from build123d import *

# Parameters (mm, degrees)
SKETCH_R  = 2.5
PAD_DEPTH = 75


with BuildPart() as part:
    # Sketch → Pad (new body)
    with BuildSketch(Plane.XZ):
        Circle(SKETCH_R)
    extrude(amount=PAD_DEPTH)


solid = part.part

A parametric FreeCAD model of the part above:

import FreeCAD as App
import Part
import Sketcher
from FreeCAD import Vector
Q = App.Units.Quantity

doc = App.newDocument("Part")
body = doc.addObject("PartDesign::Body", "Body")

# Sketch on XZ plane
sketch1 = body.newObject("Sketcher::SketchObject", "Sketch")
sketch1.AttachmentSupport = (doc.getObject("XZ_Plane"), [""])
sketch1.MapMode = "FlatFace"
sketch1.addGeometry(Part.Circle(Vector(0, 0, 0), Vector(0, 0, 1), 2.5), False)
sketch1.addConstraint([
    Sketcher.Constraint("Coincident", 0, 3, -1, 1),
    Sketcher.Constraint("Diameter", 0, Q("5 mm")),
])
pad1 = body.newObject("PartDesign::Pad", "Pad")
pad1.Profile = sketch1
pad1.Length = 75

doc.recompute()
